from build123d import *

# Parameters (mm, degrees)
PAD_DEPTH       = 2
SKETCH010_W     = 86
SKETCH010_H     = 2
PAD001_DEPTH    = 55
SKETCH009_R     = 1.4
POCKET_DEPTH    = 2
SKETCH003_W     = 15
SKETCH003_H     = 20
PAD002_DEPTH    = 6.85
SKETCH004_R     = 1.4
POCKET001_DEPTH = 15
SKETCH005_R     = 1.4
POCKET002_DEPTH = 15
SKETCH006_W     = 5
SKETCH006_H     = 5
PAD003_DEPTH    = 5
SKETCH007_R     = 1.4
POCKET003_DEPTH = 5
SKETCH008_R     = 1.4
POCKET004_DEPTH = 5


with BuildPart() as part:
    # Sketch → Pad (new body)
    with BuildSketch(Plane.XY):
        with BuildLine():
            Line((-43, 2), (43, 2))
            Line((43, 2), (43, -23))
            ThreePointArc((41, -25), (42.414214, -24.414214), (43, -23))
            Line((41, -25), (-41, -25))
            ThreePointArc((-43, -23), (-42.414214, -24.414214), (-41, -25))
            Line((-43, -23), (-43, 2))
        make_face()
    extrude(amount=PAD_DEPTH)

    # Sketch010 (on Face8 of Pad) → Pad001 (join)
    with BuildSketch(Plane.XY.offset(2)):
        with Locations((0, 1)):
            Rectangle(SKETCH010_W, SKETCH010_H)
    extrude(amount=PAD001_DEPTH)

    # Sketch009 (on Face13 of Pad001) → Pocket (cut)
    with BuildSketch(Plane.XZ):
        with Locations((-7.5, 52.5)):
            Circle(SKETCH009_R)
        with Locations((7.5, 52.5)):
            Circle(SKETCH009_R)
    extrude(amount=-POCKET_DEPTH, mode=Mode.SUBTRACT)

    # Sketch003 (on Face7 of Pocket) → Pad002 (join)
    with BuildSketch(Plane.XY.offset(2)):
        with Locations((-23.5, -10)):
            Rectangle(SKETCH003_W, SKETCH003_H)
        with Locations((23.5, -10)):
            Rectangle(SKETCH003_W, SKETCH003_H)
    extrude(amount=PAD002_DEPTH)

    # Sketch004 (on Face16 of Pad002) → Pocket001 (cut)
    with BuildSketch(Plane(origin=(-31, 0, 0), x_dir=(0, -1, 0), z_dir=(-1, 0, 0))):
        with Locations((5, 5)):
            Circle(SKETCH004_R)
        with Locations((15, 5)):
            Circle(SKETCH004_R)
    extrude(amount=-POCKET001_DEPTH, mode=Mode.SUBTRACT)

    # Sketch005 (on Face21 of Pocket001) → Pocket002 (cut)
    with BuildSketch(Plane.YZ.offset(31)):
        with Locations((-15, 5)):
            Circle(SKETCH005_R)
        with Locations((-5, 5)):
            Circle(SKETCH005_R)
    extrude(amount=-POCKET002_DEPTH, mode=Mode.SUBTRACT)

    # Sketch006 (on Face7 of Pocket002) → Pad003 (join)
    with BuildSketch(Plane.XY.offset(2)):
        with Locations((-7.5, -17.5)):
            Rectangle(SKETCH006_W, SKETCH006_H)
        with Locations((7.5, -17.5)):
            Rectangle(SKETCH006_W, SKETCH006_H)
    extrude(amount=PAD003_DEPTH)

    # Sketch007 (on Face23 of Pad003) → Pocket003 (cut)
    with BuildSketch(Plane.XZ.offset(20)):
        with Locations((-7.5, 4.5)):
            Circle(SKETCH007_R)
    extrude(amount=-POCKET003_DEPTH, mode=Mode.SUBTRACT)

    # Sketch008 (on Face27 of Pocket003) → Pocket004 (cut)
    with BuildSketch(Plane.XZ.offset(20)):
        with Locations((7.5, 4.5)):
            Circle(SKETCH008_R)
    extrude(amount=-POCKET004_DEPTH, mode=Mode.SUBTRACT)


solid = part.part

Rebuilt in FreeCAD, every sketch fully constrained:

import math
import FreeCAD as App
import Part
import Sketcher

V = App.Vector
Q = App.Units.Quantity


def add_polygon(sketch, points):
    """Adds a closed chain of lines whose ends are joined by coincident constraints."""
    first, n = sketch.GeometryCount, len(points)
    for a, b in zip(points, points[1:] + points[:1]):
        sketch.addGeometry(Part.LineSegment(App.Vector(*a, 0), App.Vector(*b, 0)), False)
    for i in range(n):
        sketch.addConstraint(Sketcher.Constraint("Coincident", first + i, 2, first + (i + 1) % n, 1))

doc = App.newDocument("Part")
params = doc.addObject("Spreadsheet::Sheet", "Params")
for row, (alias, value) in enumerate([
    ("sketch1_radius", "1.999999 mm"),
    ("sketch1_width", "86 mm"),
    ("sketch1_height", "25 mm"),
    ("pad1_length", "2 mm"),
    ("sketch2_width", "86 mm"),
    ("sketch2_height", "2 mm"),
    ("pad2_length", "55 mm"),
    ("sketch3_diameter", "2.8 mm"),
    ("pocket1_length", "2 mm"),
    ("sketch4_width", "15 mm"),
    ("sketch4_height", "20 mm"),
    ("pad3_length", "6.85 mm"),
    ("sketch5_diameter", "2.8 mm"),
    ("pocket2_length", "15 mm"),
    ("sketch6_diameter", "2.8 mm"),
    ("pocket3_length", "15 mm"),
    ("sketch7_width", "5 mm"),
    ("pad4_length", "5 mm"),
    ("sketch8_diameter", "2.8 mm"),
    ("pocket4_length", "5 mm"),
    ("sketch9_diameter", "2.8 mm"),
    ("pocket5_length", "5 mm"),
], start=1):
    params.set(f"A{row}", alias)
    params.set(f"B{row}", "=" + value)
    params.setAlias(f"B{row}", alias)

body = doc.addObject("PartDesign::Body", "Body")

# Sketch on XY plane
sketch1 = doc.addObject("Sketcher::SketchObject", "Sketch")
body.addObject(sketch1)
sketch1.AttachmentSupport = (doc.XY_Plane, [""])
sketch1.MapMode = "FlatFace"
sketch1.addGeometry([
    Part.LineSegment(V(43, 2, 0), V(-43, 2, 0)),  # 0
    Part.LineSegment(V(-43, 2, 0), V(-43, -23, 0)),  # 1
    Part.ArcOfCircle(Part.Circle(V(-41, -23, 0), V(0, 0, 1), 2), math.radians(180), math.radians(270)),  # 2
    Part.LineSegment(V(-41, -25, 0), V(41, -25, 0)),  # 3
    Part.ArcOfCircle(Part.Circle(V(41, -23, 0), V(0, 0, 1), 2), math.radians(-90), math.radians(0)),  # 4
    Part.LineSegment(V(43, -23, 0), V(43, 2, 0)),  # 5
], False)
sketch1.addConstraint([
    Sketcher.Constraint("Coincident", 0, 2, 1, 1),
    Sketcher.Constraint("Tangent", 1, 2, 2, 1),
    Sketcher.Constraint("Tangent", 2, 2, 3, 1),
    Sketcher.Constraint("Tangent", 3, 2, 4, 1),
    Sketcher.Constraint("Tangent", 4, 2, 5, 1),
    Sketcher.Constraint("Coincident", 5, 2, 0, 1),
    Sketcher.Constraint("Horizontal", 0),
    Sketcher.Constraint("Vertical", 1),
    Sketcher.Constraint("Horizontal", 3),
    Sketcher.Constraint("Vertical", 5),
    Sketcher.Constraint("Equal", 2, 4),
    Sketcher.Constraint("Radius", 2, Q("1.999999 mm")),
    Sketcher.Constraint("DistanceX", 0, 2, 0, 1, Q("86 mm")),
    Sketcher.Constraint("DistanceY", 1, 2, 1, 1, Q("25 mm")),
    Sketcher.Constraint("DistanceX", 2, 3, -1, 1, Q("41.000001 mm")),
    Sketcher.Constraint("DistanceY", 2, 3, -1, 1, Q("23.000001 mm")),
])
sketch1.setExpression("Constraints[11]", "Params.sketch1_radius")
sketch1.setExpression("Constraints[12]", "Params.sketch1_width")
sketch1.setExpression("Constraints[13]", "Params.sketch1_height")
pad1 = doc.addObject("PartDesign::Pad", "Pad")
body.addObject(pad1)
pad1.Profile = sketch1
pad1.setExpression("Length", "Params.pad1_length")

# Sketch on XY plane
sketch2 = doc.addObject("Sketcher::SketchObject", "Sketch001")
body.addObject(sketch2)
sketch2.AttachmentSupport = (doc.XY_Plane, [""])
sketch2.MapMode = "FlatFace"
sketch2.AttachmentOffset = App.Placement(V(0, 0, 2), App.Rotation())
add_polygon(sketch2, [(-43, 2), (-43, 0), (43, 0), (43, 2)])  # lines 0-3
sketch2.addConstraint([
    Sketcher.Constraint("Vertical", 0),
    Sketcher.Constraint("Horizontal", 1),
    Sketcher.Constraint("Vertical", 2),
    Sketcher.Constraint("Horizontal", 3),
    Sketcher.Constraint("Symmetric", 0, 2, 1, 2, -1, 1),
    Sketcher.Constraint("DistanceX", 1, 1, 1, 2, Q("86 mm")),
    Sketcher.Constraint("DistanceY", 0, 2, 0, 1, Q("2 mm")),
])
sketch2.setExpression("Constraints[9]", "Params.sketch2_width")
sketch2.setExpression("Constraints[10]", "Params.sketch2_height")
pad2 = doc.addObject("PartDesign::Pad", "Pad001")
body.addObject(pad2)
pad2.Profile = sketch2
pad2.setExpression("Length", "Params.pad2_length")

# Sketch on XZ plane
sketch3 = doc.addObject("Sketcher::SketchObject", "Sketch002")
body.addObject(sketch3)
sketch3.AttachmentSupport = (doc.XZ_Plane, [""])
sketch3.MapMode = "FlatFace"
sketch3.addGeometry([
    Part.Circle(V(-7.5, 52.5, 0), V(0, 0, 1), 1.4),
    Part.Circle(V(7.5, 52.5, 0), V(0, 0, 1), 1.4),
], False)
sketch3.addConstraint([
    Sketcher.Constraint("Equal", 0, 1),
    Sketcher.Constraint("Symmetric", 0, 3, 1, 3, -2),
    Sketcher.Constraint("Diameter", 0, Q("2.8 mm")),
    Sketcher.Constraint("DistanceX", 0, 3, 1, 3, Q("15 mm")),
    Sketcher.Constraint("DistanceY", -1, 1, 0, 3, Q("52.5 mm")),
])
sketch3.setExpression("Constraints[2]", "Params.sketch3_diameter")
pocket1 = doc.addObject("PartDesign::Pocket", "Pocket")
body.addObject(pocket1)
pocket1.Profile = sketch3
pocket1.setExpression("Length", "Params.pocket1_length")

# Sketch on XY plane
sketch4 = doc.addObject("Sketcher::SketchObject", "Sketch003")
body.addObject(sketch4)
sketch4.AttachmentSupport = (doc.XY_Plane, [""])
sketch4.MapMode = "FlatFace"
sketch4.AttachmentOffset = App.Placement(V(0, 0, 2), App.Rotation())
add_polygon(sketch4, [(-31, 0), (-31, -20), (-16, -20), (-16, 0)])  # lines 0-3
add_polygon(sketch4, [(16, 0), (16, -20), (31, -20), (31, 0)])  # lines 4-7
sketch4.addConstraint([
    Sketcher.Constraint("Vertical", 0),
    Sketcher.Constraint("Horizontal", 1),
    Sketcher.Constraint("Vertical", 2),
    Sketcher.Constraint("Horizontal", 3),
    Sketcher.Constraint("Vertical", 4),
    Sketcher.Constraint("Horizontal", 5),
    Sketcher.Constraint("Vertical", 6),
    Sketcher.Constraint("Horizontal", 7),
    Sketcher.Constraint("Symmetric", 3, 2, 6, 2, -1, 1),
    Sketcher.Constraint("Symmetric", 1, 2, 4, 2, -2),
    Sketcher.Constraint("PointOnObject", 2, 2, -1),
    Sketcher.Constraint("DistanceX", 1, 1, 1, 2, Q("15 mm")),
    Sketcher.Constraint("DistanceY", 0, 2, 0, 1, Q("20 mm")),
    Sketcher.Constraint("DistanceX", 0, 2, -1, 1, Q("31 mm")),
])
sketch4.setExpression("Constraints[19]", "Params.sketch4_width")
sketch4.setExpression("Constraints[20]", "Params.sketch4_height")
pad3 = doc.addObject("PartDesign::Pad", "Pad002")
body.addObject(pad3)
pad3.Profile = sketch4
pad3.setExpression("Length", "Params.pad3_length")

# Sketch on YZ plane
sketch5 = doc.addObject("Sketcher::SketchObject", "Sketch004")
body.addObject(sketch5)
sketch5.AttachmentSupport = (doc.YZ_Plane, [""])
sketch5.MapMode = "FlatFace"
sketch5.AttachmentOffset = App.Placement(V(0, 0, -31), App.Rotation())
sketch5.addGeometry([
    Part.Circle(V(-5, 5, 0), V(0, 0, 1), 1.4),
    Part.Circle(V(-15, 5, 0), V(0, 0, 1), 1.4),
], False)
sketch5.addConstraint([
    Sketcher.Constraint("Equal", 0, 1),
    Sketcher.Constraint("Horizontal", 0, 3, 1, 3),
    Sketcher.Constraint("Diameter", 0, Q("2.8 mm")),
    Sketcher.Constraint("DistanceX", 0, 3, -1, 1, Q("5 mm")),
    Sketcher.Constraint("DistanceY", -1, 1, 0, 3, Q("5 mm")),
    Sketcher.Constraint("DistanceX", 1, 3, -1, 1, Q("15 mm")),
])
sketch5.setExpression("Constraints[2]", "Params.sketch5_diameter")
pocket2 = doc.addObject("PartDesign::Pocket", "Pocket001")
body.addObject(pocket2)
pocket2.Profile = sketch5
pocket2.setExpression("Length", "Params.pocket2_length")
pocket2.Reversed = True

# Sketch on YZ plane
sketch6 = doc.addObject("Sketcher::SketchObject", "Sketch005")
body.addObject(sketch6)
sketch6.AttachmentSupport = (doc.YZ_Plane, [""])
sketch6.MapMode = "FlatFace"
sketch6.AttachmentOffset = App.Placement(V(0, 0, 31), App.Rotation())
sketch6.addGeometry([
    Part.Circle(V(-15, 5, 0), V(0, 0, 1), 1.4),
    Part.Circle(V(-5, 5, 0), V(0, 0, 1), 1.4),
], False)
sketch6.addConstraint([
    Sketcher.Constraint("Equal", 0, 1),
    Sketcher.Constraint("Horizontal", 0, 3, 1, 3),
    Sketcher.Constraint("Diameter", 0, Q("2.8 mm")),
    Sketcher.Constraint("DistanceX", 0, 3, -1, 1, Q("15 mm")),
    Sketcher.Constraint("DistanceY", -1, 1, 0, 3, Q("5 mm")),
    Sketcher.Constraint("DistanceX", 1, 3, -1, 1, Q("5 mm")),
])
sketch6.setExpression("Constraints[2]", "Params.sketch6_diameter")
pocket3 = doc.addObject("PartDesign::Pocket", "Pocket002")
body.addObject(pocket3)
pocket3.Profile = sketch6
pocket3.setExpression("Length", "Params.pocket3_length")

# Sketch on XY plane
sketch7 = doc.addObject("Sketcher::SketchObject", "Sketch006")
body.addObject(sketch7)
sketch7.AttachmentSupport = (doc.XY_Plane, [""])
sketch7.MapMode = "FlatFace"
sketch7.AttachmentOffset = App.Placement(V(0, 0, 2), App.Rotation())
add_polygon(sketch7, [(-10, -15), (-10, -20), (-5, -20), (-5, -15)])  # lines 0-3
add_polygon(sketch7, [(5, -15), (5, -20), (10, -20), (10, -15)])  # lines 4-7
sketch7.addConstraint([
    Sketcher.Constraint("Vertical", 0),
    Sketcher.Constraint("Horizontal", 1),
    Sketcher.Constraint("Vertical", 2),
    Sketcher.Constraint("Horizontal", 3),
    Sketcher.Constraint("Vertical", 4),
    Sketcher.Constraint("Horizontal", 5),
    Sketcher.Constraint("Vertical", 6),
    Sketcher.Constraint("Horizontal", 7),
    Sketcher.Constraint("Symmetric", 1, 2, 4, 2, -2),
    Sketcher.Constraint("Symmetric", 3, 2, 6, 2, -2),
    Sketcher.Constraint("Equal", 7, 0),
    Sketcher.Constraint("DistanceX", 1, 1, 1, 2, Q("5 mm")),
    Sketcher.Constraint("DistanceX", 0, 2, -1, 1, Q("10 mm")),
    Sketcher.Constraint("DistanceY", 0, 2, -1, 1, Q("20 mm")),
])
sketch7.setExpression("Constraints[19]", "Params.sketch7_width")
pad4 = doc.addObject("PartDesign::Pad", "Pad003")
body.addObject(pad4)
pad4.Profile = sketch7
pad4.setExpression("Length", "Params.pad4_length")

# Sketch on XZ plane
sketch8 = doc.addObject("Sketcher::SketchObject", "Sketch007")
body.addObject(sketch8)
sketch8.AttachmentSupport = (doc.XZ_Plane, [""])
sketch8.MapMode = "FlatFace"
sketch8.AttachmentOffset = App.Placement(V(0, 0, 20), App.Rotation())
sketch8.addGeometry(Part.Circle(V(-7.5, 4.5, 0), V(0, 0, 1), 1.4), False)
sketch8.addConstraint([
    Sketcher.Constraint("Diameter", 0, Q("2.8 mm")),
    Sketcher.Constraint("DistanceX", 0, 3, -1, 1, Q("7.5 mm")),
    Sketcher.Constraint("DistanceY", -1, 1, 0, 3, Q("4.5 mm")),
])
sketch8.setExpression("Constraints[0]", "Params.sketch8_diameter")
pocket4 = doc.addObject("PartDesign::Pocket", "Pocket003")
body.addObject(pocket4)
pocket4.Profile = sketch8
pocket4.setExpression("Length", "Params.pocket4_length")

# Sketch on XZ plane
sketch9 = doc.addObject("Sketcher::SketchObject", "Sketch008")
body.addObject(sketch9)
sketch9.AttachmentSupport = (doc.XZ_Plane, [""])
sketch9.MapMode = "FlatFace"
sketch9.AttachmentOffset = App.Placement(V(0, 0, 20), App.Rotation())
sketch9.addGeometry(Part.Circle(V(7.5, 4.5, 0), V(0, 0, 1), 1.4), False)
sketch9.addConstraint([
    Sketcher.Constraint("Diameter", 0, Q("2.8 mm")),
    Sketcher.Constraint("DistanceX", -1, 1, 0, 3, Q("7.5 mm")),
    Sketcher.Constraint("DistanceY", -1, 1, 0, 3, Q("4.5 mm")),
])
sketch9.setExpression("Constraints[0]", "Params.sketch9_diameter")
pocket5 = doc.addObject("PartDesign::Pocket", "Pocket004")
body.addObject(pocket5)
pocket5.Profile = sketch9
pocket5.setExpression("Length", "Params.pocket5_length")

doc.recompute()
